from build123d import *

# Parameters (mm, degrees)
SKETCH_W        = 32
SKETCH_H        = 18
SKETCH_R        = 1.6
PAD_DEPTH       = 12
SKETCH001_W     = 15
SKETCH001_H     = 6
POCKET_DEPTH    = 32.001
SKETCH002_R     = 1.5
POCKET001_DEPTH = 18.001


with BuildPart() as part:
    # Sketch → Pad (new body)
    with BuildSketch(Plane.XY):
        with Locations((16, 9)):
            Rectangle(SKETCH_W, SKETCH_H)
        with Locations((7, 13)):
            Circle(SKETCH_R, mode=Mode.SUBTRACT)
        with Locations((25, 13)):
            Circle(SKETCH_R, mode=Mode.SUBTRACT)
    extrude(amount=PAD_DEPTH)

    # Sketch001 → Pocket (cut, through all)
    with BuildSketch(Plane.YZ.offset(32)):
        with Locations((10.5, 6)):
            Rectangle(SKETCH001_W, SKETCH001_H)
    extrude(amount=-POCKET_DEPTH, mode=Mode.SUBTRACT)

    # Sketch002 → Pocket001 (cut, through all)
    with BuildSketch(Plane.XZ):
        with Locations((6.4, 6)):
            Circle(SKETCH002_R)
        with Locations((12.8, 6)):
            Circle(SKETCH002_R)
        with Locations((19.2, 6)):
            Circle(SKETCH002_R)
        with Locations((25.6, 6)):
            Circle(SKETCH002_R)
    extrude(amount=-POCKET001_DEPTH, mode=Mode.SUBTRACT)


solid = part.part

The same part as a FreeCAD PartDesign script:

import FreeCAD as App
import Part
import Sketcher


def add_polygon(sketch, points):
    """Adds a closed chain of lines whose ends are joined by coincident constraints."""
    first, n = sketch.GeometryCount, len(points)
    for a, b in zip(points, points[1:] + points[:1]):
        sketch.addGeometry(Part.LineSegment(App.Vector(*a, 0), App.Vector(*b, 0)), False)
    for i in range(n):
        sketch.addConstraint(Sketcher.Constraint("Coincident", first + i, 2, first + (i + 1) % n, 1))

doc = App.newDocument("Part")
body = doc.addObject("PartDesign::Body", "Body")

sketch1 = doc.addObject("Sketcher::SketchObject", "Sketch")
body.addObject(sketch1)
sketch1.AttachmentSupport = (doc.XY_Plane, [""])
sketch1.MapMode = "FlatFace"
add_polygon(sketch1, [(0, 18), (0, 0), (32, 0), (32, 18)])
sketch1.addGeometry(Part.Circle(App.Vector(7, 13, 0), App.Vector(0, 0, 1), 1.6), False)
sketch1.addGeometry(Part.Circle(App.Vector(25, 13, 0), App.Vector(0, 0, 1), 1.6), False)
sketch1.addConstraint(Sketcher.Constraint("Vertical", 0))
sketch1.addConstraint(Sketcher.Constraint("Horizontal", 1))
sketch1.addConstraint(Sketcher.Constraint("Vertical", 2))
sketch1.addConstraint(Sketcher.Constraint("Horizontal", 3))
sketch1.addConstraint(Sketcher.Constraint("Coincident", 0, 2, -1, 1))
sketch1.addConstraint(Sketcher.Constraint("Equal", 4, 5))
sketch1.addConstraint(Sketcher.Constraint("Horizontal", 4, 3, 5, 3))
sketch1.addConstraint(Sketcher.Constraint("Diameter", 4, 3.2))
sketch1.addConstraint(Sketcher.Constraint("DistanceX", 1, 1, 1, 2, 32.0))
sketch1.addConstraint(Sketcher.Constraint("DistanceY", 0, 2, 0, 1, 18.0))
sketch1.addConstraint(Sketcher.Constraint("DistanceX", -1, 1, 4, 3, 7.0))
sketch1.addConstraint(Sketcher.Constraint("DistanceY", -1, 1, 4, 3, 13.0))
sketch1.addConstraint(Sketcher.Constraint("DistanceX", -1, 1, 5, 3, 25.0))
pad1 = doc.addObject("PartDesign::Pad", "Pad")
body.addObject(pad1)
pad1.Profile = sketch1
pad1.Length = 12

sketch2 = doc.addObject("Sketcher::SketchObject", "Sketch001")
body.addObject(sketch2)
sketch2.AttachmentSupport = (doc.YZ_Plane, [""])
sketch2.MapMode = "FlatFace"
sketch2.AttachmentOffset = App.Placement(App.Vector(0, 0, 32), App.Rotation())
add_polygon(sketch2, [(3, 9), (3, 3), (18, 3), (18, 9)])
sketch2.addConstraint(Sketcher.Constraint("Vertical", 0))
sketch2.addConstraint(Sketcher.Constraint("Horizontal", 1))
sketch2.addConstraint(Sketcher.Constraint("Vertical", 2))
sketch2.addConstraint(Sketcher.Constraint("Horizontal", 3))
sketch2.addConstraint(Sketcher.Constraint("DistanceX", 1, 1, 1, 2, 15.0))
sketch2.addConstraint(Sketcher.Constraint("DistanceY", 0, 2, 0, 1, 6.0))
sketch2.addConstraint(Sketcher.Constraint("DistanceX", -1, 1, 0, 2, 3.0))
sketch2.addConstraint(Sketcher.Constraint("DistanceY", -1, 1, 0, 2, 3.0))
pocket1 = doc.addObject("PartDesign::Pocket", "Pocket")
body.addObject(pocket1)
pocket1.Profile = sketch2
pocket1.Type = "ThroughAll"

sketch3 = doc.addObject("Sketcher::SketchObject", "Sketch002")
body.addObject(sketch3)
sketch3.AttachmentSupport = (doc.XZ_Plane, [""])
sketch3.MapMode = "FlatFace"
sketch3.addGeometry(Part.Circle(App.Vector(6.4, 6, 0), App.Vector(0, 0, 1), 1.5), False)
sketch3.addGeometry(Part.Circle(App.Vector(12.8, 6, 0), App.Vector(0, 0, 1), 1.5), False)
sketch3.addGeometry(Part.Circle(App.Vector(19.2, 6, 0), App.Vector(0, 0, 1), 1.5), False)
sketch3.addGeometry(Part.Circle(App.Vector(25.6, 6, 0), App.Vector(0, 0, 1), 1.5), False)
sketch3.addConstraint(Sketcher.Constraint("Equal", 0, 1))
sketch3.addConstraint(Sketcher.Constraint("Equal", 1, 2))
sketch3.addConstraint(Sketcher.Constraint("Equal", 2, 3))
sketch3.addConstraint(Sketcher.Constraint("Horizontal", 0, 3, 1, 3))
sketch3.addConstraint(Sketcher.Constraint("Horizontal", 1, 3, 2, 3))
sketch3.addConstraint(Sketcher.Constraint("Horizontal", 2, 3, 3, 3))
sketch3.addConstraint(Sketcher.Constraint("Diameter", 0, 3.0))
sketch3.addConstraint(Sketcher.Constraint("DistanceY", -1, 1, 0, 3, 6.0))
sketch3.addConstraint(Sketcher.Constraint("DistanceX", -1, 1, 0, 3, 6.4))
sketch3.addConstraint(Sketcher.Constraint("DistanceX", -1, 1, 1, 3, 12.8))
sketch3.addConstraint(Sketcher.Constraint("DistanceX", -1, 1, 2, 3, 19.2))
sketch3.addConstraint(Sketcher.Constraint("DistanceX", -1, 1, 3, 3, 25.6))
pocket2 = doc.addObject("PartDesign::Pocket", "Pocket001")
body.addObject(pocket2)
pocket2.Profile = sketch3
pocket2.Type = "ThroughAll"

doc.recompute()
